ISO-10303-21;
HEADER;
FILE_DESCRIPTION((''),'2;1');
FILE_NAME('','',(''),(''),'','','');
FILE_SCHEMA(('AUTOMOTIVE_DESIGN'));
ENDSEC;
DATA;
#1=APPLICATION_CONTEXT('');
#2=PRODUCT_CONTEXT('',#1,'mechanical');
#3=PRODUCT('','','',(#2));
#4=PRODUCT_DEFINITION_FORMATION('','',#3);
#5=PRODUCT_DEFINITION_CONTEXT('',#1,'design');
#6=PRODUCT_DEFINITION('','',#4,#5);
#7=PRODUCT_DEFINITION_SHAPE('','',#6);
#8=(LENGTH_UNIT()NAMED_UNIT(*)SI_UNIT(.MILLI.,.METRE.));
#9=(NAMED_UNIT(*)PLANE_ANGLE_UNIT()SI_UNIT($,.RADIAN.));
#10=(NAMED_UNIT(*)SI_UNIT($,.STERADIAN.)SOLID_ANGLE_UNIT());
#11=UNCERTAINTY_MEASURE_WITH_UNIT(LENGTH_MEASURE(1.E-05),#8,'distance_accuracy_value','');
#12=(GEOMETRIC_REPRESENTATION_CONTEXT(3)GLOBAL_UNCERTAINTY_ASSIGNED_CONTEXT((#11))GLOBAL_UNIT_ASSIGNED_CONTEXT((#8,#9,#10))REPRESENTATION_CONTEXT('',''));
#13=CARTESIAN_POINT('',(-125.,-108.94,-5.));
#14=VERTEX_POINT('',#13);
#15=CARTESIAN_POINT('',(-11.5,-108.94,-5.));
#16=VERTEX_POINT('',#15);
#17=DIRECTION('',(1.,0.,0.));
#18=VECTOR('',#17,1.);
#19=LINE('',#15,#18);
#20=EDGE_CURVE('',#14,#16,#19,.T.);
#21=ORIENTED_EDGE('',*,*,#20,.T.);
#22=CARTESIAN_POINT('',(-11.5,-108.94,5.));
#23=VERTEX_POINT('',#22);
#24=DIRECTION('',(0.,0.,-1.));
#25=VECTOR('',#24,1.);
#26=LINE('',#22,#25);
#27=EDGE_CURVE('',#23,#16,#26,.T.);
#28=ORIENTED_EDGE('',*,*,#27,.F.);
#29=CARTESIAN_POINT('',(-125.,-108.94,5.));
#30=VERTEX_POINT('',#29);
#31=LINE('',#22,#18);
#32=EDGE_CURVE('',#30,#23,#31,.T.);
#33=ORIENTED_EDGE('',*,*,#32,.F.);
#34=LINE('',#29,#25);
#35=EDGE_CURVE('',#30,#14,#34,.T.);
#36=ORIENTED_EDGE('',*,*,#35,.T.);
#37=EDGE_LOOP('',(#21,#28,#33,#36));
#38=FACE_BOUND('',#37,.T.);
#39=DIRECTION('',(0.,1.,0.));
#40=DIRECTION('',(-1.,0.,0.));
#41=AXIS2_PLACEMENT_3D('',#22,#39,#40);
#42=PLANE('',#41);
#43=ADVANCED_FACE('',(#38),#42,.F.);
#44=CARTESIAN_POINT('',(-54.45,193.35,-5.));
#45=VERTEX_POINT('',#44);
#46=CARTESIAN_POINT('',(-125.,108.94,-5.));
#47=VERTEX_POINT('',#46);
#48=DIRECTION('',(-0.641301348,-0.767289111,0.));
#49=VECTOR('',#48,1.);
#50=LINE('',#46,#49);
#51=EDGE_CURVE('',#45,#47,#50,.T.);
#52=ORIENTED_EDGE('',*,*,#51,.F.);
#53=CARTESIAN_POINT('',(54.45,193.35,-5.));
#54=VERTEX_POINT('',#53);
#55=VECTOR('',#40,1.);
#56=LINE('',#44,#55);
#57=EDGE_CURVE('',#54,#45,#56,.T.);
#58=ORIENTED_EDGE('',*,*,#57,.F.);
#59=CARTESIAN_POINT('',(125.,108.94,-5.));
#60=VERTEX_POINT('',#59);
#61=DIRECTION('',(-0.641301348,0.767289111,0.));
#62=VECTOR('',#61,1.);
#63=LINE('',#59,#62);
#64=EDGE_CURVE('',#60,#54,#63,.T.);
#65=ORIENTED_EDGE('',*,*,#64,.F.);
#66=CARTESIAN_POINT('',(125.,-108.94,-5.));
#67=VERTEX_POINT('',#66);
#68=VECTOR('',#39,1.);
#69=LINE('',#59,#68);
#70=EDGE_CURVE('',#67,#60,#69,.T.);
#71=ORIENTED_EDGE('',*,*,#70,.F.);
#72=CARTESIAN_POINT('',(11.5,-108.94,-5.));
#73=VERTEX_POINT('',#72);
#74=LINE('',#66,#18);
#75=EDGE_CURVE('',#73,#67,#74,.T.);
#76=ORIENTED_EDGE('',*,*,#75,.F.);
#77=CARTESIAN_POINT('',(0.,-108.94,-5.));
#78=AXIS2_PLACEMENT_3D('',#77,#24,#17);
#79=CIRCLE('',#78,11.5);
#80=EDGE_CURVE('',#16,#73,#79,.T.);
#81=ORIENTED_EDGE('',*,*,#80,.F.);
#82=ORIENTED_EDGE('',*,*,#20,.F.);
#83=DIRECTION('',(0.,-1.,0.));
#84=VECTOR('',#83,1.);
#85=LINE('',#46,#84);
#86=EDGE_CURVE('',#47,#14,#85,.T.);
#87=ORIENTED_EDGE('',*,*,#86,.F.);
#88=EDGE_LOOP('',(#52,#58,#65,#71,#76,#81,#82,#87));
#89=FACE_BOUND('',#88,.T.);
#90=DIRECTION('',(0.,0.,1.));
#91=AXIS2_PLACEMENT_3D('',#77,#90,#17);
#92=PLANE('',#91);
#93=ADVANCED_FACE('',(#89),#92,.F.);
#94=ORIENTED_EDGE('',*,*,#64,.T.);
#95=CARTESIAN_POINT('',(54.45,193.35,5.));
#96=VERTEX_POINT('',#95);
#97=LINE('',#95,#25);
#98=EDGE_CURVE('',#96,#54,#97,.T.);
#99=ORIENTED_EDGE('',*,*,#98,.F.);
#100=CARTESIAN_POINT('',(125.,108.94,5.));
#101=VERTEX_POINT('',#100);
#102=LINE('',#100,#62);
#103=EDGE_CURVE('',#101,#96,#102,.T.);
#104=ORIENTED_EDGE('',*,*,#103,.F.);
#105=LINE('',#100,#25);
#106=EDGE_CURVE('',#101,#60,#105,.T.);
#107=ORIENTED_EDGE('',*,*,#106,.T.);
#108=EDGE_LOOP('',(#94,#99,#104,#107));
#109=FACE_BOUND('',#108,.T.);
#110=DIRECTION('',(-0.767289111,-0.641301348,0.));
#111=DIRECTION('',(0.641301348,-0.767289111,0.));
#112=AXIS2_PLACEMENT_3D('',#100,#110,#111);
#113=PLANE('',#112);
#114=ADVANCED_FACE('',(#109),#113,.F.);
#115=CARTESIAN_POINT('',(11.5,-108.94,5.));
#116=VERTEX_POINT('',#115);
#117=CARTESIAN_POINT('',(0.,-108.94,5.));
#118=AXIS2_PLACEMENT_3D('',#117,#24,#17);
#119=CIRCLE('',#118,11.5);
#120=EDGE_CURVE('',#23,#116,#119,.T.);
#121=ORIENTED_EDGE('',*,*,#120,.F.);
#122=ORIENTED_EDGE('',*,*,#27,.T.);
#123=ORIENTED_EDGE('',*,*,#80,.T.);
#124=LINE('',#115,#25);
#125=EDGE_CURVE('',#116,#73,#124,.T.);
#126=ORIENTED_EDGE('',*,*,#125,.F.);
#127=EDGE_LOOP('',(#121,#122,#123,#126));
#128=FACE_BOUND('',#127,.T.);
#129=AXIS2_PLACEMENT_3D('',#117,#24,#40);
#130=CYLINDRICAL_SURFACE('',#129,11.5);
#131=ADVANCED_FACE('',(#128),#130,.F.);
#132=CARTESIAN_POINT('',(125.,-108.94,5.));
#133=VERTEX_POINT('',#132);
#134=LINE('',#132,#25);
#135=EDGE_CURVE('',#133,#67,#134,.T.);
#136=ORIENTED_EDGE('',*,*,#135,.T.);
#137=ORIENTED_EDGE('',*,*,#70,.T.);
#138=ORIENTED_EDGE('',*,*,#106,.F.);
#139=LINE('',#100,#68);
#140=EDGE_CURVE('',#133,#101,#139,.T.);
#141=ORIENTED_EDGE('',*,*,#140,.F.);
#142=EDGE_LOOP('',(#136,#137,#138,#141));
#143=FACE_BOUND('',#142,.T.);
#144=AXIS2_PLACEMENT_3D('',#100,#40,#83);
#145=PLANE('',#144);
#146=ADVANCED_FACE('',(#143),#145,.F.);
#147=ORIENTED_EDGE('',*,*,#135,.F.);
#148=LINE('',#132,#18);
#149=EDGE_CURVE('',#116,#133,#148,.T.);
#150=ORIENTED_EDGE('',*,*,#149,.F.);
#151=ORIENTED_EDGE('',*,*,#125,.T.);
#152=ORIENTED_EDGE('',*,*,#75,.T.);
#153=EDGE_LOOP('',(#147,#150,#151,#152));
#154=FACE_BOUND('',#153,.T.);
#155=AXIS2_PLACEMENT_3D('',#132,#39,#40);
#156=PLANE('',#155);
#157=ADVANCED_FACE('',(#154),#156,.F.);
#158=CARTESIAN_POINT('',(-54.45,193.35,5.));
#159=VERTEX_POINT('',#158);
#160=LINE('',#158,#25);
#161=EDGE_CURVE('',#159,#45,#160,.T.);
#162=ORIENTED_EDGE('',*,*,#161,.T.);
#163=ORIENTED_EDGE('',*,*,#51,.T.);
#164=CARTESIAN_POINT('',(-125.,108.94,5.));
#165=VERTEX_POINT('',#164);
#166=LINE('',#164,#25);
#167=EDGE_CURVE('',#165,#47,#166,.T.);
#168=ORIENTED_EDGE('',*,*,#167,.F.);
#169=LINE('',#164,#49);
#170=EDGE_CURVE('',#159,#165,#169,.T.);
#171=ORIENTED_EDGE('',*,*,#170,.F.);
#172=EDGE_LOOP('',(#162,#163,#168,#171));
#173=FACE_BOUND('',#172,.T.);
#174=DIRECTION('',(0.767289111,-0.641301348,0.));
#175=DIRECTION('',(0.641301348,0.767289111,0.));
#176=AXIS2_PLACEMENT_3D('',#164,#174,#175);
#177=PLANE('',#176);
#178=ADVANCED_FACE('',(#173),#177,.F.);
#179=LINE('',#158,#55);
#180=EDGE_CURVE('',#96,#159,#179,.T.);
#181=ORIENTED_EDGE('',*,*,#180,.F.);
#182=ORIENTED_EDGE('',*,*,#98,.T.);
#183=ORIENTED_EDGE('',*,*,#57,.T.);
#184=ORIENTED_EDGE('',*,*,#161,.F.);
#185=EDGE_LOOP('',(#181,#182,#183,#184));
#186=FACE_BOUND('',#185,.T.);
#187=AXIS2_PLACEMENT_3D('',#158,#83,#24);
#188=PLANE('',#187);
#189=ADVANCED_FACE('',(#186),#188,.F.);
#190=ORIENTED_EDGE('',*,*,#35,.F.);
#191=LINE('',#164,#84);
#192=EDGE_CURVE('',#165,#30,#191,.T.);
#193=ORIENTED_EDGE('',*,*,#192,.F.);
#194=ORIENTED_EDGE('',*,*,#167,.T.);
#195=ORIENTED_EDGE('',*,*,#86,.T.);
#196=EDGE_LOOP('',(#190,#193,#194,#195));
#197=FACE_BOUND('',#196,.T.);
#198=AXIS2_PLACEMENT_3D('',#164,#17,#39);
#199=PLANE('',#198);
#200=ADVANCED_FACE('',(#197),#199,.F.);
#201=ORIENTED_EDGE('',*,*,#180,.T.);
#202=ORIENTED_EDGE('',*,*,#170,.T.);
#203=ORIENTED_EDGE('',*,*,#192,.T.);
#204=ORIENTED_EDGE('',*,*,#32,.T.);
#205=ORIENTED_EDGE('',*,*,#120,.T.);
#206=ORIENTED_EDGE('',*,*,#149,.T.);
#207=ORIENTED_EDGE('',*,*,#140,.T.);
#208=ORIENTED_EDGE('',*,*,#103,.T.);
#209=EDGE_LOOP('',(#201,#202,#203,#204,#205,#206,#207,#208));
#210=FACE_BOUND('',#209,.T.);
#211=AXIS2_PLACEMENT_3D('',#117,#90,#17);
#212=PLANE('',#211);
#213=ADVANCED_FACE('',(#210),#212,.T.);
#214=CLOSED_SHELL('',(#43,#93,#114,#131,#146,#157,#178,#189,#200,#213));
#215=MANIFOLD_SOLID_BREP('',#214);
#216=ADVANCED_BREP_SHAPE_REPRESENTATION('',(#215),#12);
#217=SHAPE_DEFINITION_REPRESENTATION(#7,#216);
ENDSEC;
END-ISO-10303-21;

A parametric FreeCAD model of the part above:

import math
import FreeCAD as App
import Part
import Sketcher

doc = App.newDocument("Part")
body = doc.addObject("PartDesign::Body", "Body")

# Sketch on XY plane
sketch1 = body.newObject("Sketcher::SketchObject", "Sketch")
sketch1.AttachmentSupport = (doc.getObject("XY_Plane"), [""])
sketch1.MapMode = "FlatFace"
sketch1.addGeometry([
    Part.LineSegment(App.Vector(-125, -109, 0), App.Vector(-12, -109, 0)),  # 0
    Part.ArcOfCircle(Part.Circle(App.Vector(0, -109, 0), App.Vector(0, 0, 1), 12), math.radians(0), math.radians(180)),  # 1
    Part.LineSegment(App.Vector(12, -109, 0), App.Vector(125, -109, 0)),  # 2
    Part.LineSegment(App.Vector(125, -109, 0), App.Vector(125, 109, 0)),  # 3
    Part.LineSegment(App.Vector(125, 109, 0), App.Vector(54, 193, 0)),  # 4
    Part.LineSegment(App.Vector(54, 193, 0), App.Vector(-54, 193, 0)),  # 5
    Part.LineSegment(App.Vector(-54, 193, 0), App.Vector(-125, 109, 0)),  # 6
    Part.LineSegment(App.Vector(-125, 109, 0), App.Vector(-125, -109, 0)),  # 7
], False)
sketch1.addConstraint([
    Sketcher.Constraint("Coincident", 0, 2, 1, 2),
    Sketcher.Constraint("Coincident", 1, 1, 2, 1),
    Sketcher.Constraint("Coincident", 2, 2, 3, 1),
    Sketcher.Constraint("Coincident", 3, 2, 4, 1),
    Sketcher.Constraint("Coincident", 4, 2, 5, 1),
    Sketcher.Constraint("Coincident", 5, 2, 6, 1),
    Sketcher.Constraint("Coincident", 6, 2, 7, 1),
    Sketcher.Constraint("Coincident", 7, 2, 0, 1),
    Sketcher.Constraint("Horizontal", 0),
    Sketcher.Constraint("Horizontal", 2),
    Sketcher.Constraint("Vertical", 3),
    Sketcher.Constraint("Horizontal", 5),
    Sketcher.Constraint("Vertical", 7),
    Sketcher.Constraint("Symmetric", 2, 2, 6, 2, -1, 1),
    Sketcher.Constraint("Symmetric", 0, 2, 1, 1, -2),
    Sketcher.Constraint("Horizontal", 1, 3, 0, 2),
    Sketcher.Constraint("Horizontal", 3, 2, 6, 2),
    Sketcher.Constraint("Equal", 4, 6),
    Sketcher.Constraint("Radius", 1, 11.5),
    Sketcher.Constraint("DistanceX", 0, 1, 0, 2, 113.5),
    Sketcher.Constraint("DistanceX", 5, 2, 5, 1, 108.9),
    Sketcher.Constraint("DistanceY", 3, 1, 3, 2, 217.88),
    Sketcher.Constraint("DistanceY", -1, 1, 4, 2, 193.35),
])
pad1 = body.newObject("PartDesign::Pad", "Pad")
pad1.Profile = sketch1
pad1.Length = 10
pad1.Midplane = True

doc.recompute()
